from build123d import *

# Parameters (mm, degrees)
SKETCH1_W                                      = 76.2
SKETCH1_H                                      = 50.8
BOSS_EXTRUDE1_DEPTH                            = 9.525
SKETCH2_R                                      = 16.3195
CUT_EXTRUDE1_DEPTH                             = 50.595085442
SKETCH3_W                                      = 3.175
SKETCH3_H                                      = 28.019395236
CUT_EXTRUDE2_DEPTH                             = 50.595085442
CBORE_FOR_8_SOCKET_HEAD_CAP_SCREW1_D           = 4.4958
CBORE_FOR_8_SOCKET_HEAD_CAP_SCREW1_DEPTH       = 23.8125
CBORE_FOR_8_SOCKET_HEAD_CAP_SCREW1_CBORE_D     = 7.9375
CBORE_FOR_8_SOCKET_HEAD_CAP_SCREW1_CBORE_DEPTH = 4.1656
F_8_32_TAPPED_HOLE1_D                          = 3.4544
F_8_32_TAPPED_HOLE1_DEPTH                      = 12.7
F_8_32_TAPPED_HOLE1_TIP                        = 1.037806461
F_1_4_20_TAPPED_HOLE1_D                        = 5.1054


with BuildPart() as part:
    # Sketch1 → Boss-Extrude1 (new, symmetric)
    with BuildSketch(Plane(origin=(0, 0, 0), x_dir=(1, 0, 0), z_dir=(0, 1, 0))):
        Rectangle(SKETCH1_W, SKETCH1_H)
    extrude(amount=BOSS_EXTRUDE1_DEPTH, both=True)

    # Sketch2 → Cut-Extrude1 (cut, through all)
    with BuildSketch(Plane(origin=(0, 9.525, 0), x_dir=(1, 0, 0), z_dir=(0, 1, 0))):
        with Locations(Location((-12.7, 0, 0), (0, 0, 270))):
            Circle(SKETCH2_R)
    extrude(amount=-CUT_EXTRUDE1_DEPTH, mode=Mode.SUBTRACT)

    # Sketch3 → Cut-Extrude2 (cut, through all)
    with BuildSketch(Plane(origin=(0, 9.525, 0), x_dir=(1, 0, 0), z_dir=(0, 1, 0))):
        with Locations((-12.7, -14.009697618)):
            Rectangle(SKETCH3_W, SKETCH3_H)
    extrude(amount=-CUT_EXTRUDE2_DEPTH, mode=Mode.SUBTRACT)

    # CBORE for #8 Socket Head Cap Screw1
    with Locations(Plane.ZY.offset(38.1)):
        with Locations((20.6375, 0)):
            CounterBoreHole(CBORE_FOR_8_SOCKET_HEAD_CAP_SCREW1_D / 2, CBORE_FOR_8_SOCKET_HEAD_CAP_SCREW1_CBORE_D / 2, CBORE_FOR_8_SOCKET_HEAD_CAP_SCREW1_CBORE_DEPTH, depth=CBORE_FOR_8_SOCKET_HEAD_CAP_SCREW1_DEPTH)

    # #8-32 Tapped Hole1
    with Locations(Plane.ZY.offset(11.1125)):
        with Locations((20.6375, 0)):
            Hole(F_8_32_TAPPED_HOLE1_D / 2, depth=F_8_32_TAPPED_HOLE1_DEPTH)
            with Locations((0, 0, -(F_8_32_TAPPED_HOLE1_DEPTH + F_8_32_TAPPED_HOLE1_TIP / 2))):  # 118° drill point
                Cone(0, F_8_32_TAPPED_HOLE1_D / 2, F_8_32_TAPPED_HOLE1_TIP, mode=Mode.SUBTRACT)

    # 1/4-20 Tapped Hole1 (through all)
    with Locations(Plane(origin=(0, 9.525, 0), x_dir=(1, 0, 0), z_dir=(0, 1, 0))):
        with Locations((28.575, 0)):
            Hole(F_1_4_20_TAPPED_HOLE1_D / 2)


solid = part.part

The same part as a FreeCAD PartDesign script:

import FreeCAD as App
import Part
import Sketcher

V = App.Vector
Q = App.Units.Quantity

doc = App.newDocument("Part")
body = doc.addObject("PartDesign::Body", "Body")

sketch1 = body.newObject("Sketcher::SketchObject", "Sketch")
sketch1.AttachmentSupport = (doc.getObject("XZ_Plane"), [""])
sketch1.MapMode = "FlatFace"
sketch1.addGeometry([
    Part.LineSegment(V(-38, -25, 0), V(-38, 25, 0)),
    Part.LineSegment(V(-38, 25, 0), V(38, 25, 0)),
    Part.LineSegment(V(38, 25, 0), V(38, -25, 0)),
    Part.LineSegment(V(38, -25, 0), V(-38, -25, 0)),
], False)
sketch1.addConstraint([
    Sketcher.Constraint("Coincident", 0, 2, 1, 1),
    Sketcher.Constraint("Coincident", 1, 2, 2, 1),
    Sketcher.Constraint("Coincident", 2, 2, 3, 1),
    Sketcher.Constraint("Coincident", 3, 2, 0, 1),
    Sketcher.Constraint("Vertical", 0),
    Sketcher.Constraint("Horizontal", 1),
    Sketcher.Constraint("Vertical", 2),
    Sketcher.Constraint("Horizontal", 3),
    Sketcher.Constraint("Symmetric", 0, 2, 2, 2, -1, 1),
    Sketcher.Constraint("DistanceX", 1, 1, 1, 2, Q("3 in")),
    Sketcher.Constraint("DistanceY", 0, 1, 0, 2, Q("2 in")),
])
pad1 = body.newObject("PartDesign::Pad", "Pad")
pad1.Profile = sketch1
pad1.Length = Q("0.75 in")
pad1.Midplane = True

sketch2 = body.newObject("Sketcher::SketchObject", "Sketch001")
sketch2.AttachmentSupport = (doc.getObject("XZ_Plane"), [""])
sketch2.MapMode = "FlatFace"
sketch2.AttachmentOffset = App.Placement(V(0, 0, -0.375 * 25.4), App.Rotation())
sketch2.addGeometry(Part.Circle(V(-13, 0, 0), V(0, 0, 1), 16), False)
sketch2.addConstraint([
    Sketcher.Constraint("PointOnObject", 0, 3, -1),
    Sketcher.Constraint("Diameter", 0, Q("1.285 in")),
    Sketcher.Constraint("DistanceX", 0, 3, -1, 1, Q("0.5 in")),
])
pocket1 = body.newObject("PartDesign::Pocket", "Pocket")
pocket1.Profile = sketch2
pocket1.Type = "ThroughAll"
pocket1.Reversed = True

sketch3 = body.newObject("Sketcher::SketchObject", "Sketch002")
sketch3.AttachmentSupport = (doc.getObject("XZ_Plane"), [""])
sketch3.MapMode = "FlatFace"
sketch3.AttachmentOffset = App.Placement(V(0, 0, -0.375 * 25.4), App.Rotation())
sketch3.addGeometry([
    Part.LineSegment(V(-14.3, 0, 0), V(-14.3, 28, 0)),
    Part.LineSegment(V(-14.3, 28, 0), V(-11.1, 28, 0)),
    Part.LineSegment(V(-11.1, 28, 0), V(-11.1, 0, 0)),
    Part.LineSegment(V(-11.1, 0, 0), V(-14.3, 0, 0)),
], False)
sketch3.addConstraint([
    Sketcher.Constraint("Coincident", 0, 2, 1, 1),
    Sketcher.Constraint("Coincident", 1, 2, 2, 1),
    Sketcher.Constraint("Coincident", 2, 2, 3, 1),
    Sketcher.Constraint("Coincident", 3, 2, 0, 1),
    Sketcher.Constraint("Vertical", 0),
    Sketcher.Constraint("Horizontal", 1),
    Sketcher.Constraint("Vertical", 2),
    Sketcher.Constraint("Horizontal", 3),
    Sketcher.Constraint("PointOnObject", 2, 2, -1),
    Sketcher.Constraint("DistanceX", 1, 1, 1, 2, Q("0.125 in")),
    Sketcher.Constraint("DistanceX", 0, 2, -1, 1, Q("0.5625 in")),
    Sketcher.Constraint("DistanceY", 0, 1, 0, 2, Q("28.019395 mm")),
])
pocket2 = body.newObject("PartDesign::Pocket", "Pocket001")
pocket2.Profile = sketch3
pocket2.Type = "ThroughAll"
pocket2.Reversed = True

sketch4 = body.newObject("Sketcher::SketchObject", "Sketch003")
sketch4.AttachmentSupport = (doc.getObject("YZ_Plane"), [""])
sketch4.MapMode = "FlatFace"
sketch4.AttachmentOffset = App.Placement(V(0, 0, -1.5 * 25.4), App.Rotation())
sketch4.addGeometry(Part.Circle(V(0, 20.6, 0), V(0, 0, 1), 2.2), False)
sketch4.addConstraint([
    Sketcher.Constraint("PointOnObject", 0, 3, -2),
    Sketcher.Constraint("Diameter", 0, Q("0.177 in")),
    Sketcher.Constraint("DistanceY", -1, 1, 0, 3, Q("0.8125 in")),
])
doc.recompute()
hole = body.newObject("PartDesign::Hole", "Hole")
hole.Profile = sketch4
hole.ThreadType = "None"
hole.Diameter = Q("0.177 in")
hole.DepthType = "Dimension"
hole.Depth = Q("0.9375 in")
hole.DrillPoint = "Flat"
hole.HoleCutType = "Counterbore"
hole.HoleCutDiameter = Q("0.3125 in")
hole.HoleCutDepth = Q("0.164 in")
hole.Reversed = True

sketch5 = body.newObject("Sketcher::SketchObject", "Sketch004")
sketch5.AttachmentSupport = (doc.getObject("YZ_Plane"), [""])
sketch5.MapMode = "FlatFace"
sketch5.AttachmentOffset = App.Placement(V(0, 0, -0.4375 * 25.4), App.Rotation())
sketch5.addGeometry(Part.Circle(V(0, 20.6, 0), V(0, 0, 1), 1.7), False)
sketch5.addConstraint([
    Sketcher.Constraint("PointOnObject", 0, 3, -2),
    Sketcher.Constraint("Diameter", 0, Q("0.136 in")),
    Sketcher.Constraint("DistanceY", -1, 1, 0, 3, Q("0.8125 in")),
])
doc.recompute()
hole2 = body.newObject("PartDesign::Hole", "Hole001")
hole2.Profile = sketch5
hole2.ThreadType = "None"
hole2.Diameter = Q("0.136 in")
hole2.DepthType = "Dimension"
hole2.Depth = Q("0.5 in")
hole2.DrillPoint = "Angled"
hole2.DrillPointAngle = 118
hole2.Reversed = True

sketch6 = body.newObject("Sketcher::SketchObject", "Sketch005")
sketch6.AttachmentSupport = (doc.getObject("XZ_Plane"), [""])
sketch6.MapMode = "FlatFace"
sketch6.AttachmentOffset = App.Placement(V(0, 0, -0.375 * 25.4), App.Rotation())
sketch6.addGeometry(Part.Circle(V(28.6, 0, 0), V(0, 0, 1), 2.6), False)
sketch6.addConstraint([
    Sketcher.Constraint("PointOnObject", 0, 3, -1),
    Sketcher.Constraint("Diameter", 0, Q("0.201 in")),
    Sketcher.Constraint("DistanceX", -1, 1, 0, 3, Q("1.125 in")),
])
doc.recompute()
hole3 = body.newObject("PartDesign::Hole", "Hole002")
hole3.Profile = sketch6
hole3.ThreadType = "None"
hole3.Diameter = Q("0.201 in")
hole3.DepthType = "ThroughAll"
hole3.Reversed = True

doc.recompute()
